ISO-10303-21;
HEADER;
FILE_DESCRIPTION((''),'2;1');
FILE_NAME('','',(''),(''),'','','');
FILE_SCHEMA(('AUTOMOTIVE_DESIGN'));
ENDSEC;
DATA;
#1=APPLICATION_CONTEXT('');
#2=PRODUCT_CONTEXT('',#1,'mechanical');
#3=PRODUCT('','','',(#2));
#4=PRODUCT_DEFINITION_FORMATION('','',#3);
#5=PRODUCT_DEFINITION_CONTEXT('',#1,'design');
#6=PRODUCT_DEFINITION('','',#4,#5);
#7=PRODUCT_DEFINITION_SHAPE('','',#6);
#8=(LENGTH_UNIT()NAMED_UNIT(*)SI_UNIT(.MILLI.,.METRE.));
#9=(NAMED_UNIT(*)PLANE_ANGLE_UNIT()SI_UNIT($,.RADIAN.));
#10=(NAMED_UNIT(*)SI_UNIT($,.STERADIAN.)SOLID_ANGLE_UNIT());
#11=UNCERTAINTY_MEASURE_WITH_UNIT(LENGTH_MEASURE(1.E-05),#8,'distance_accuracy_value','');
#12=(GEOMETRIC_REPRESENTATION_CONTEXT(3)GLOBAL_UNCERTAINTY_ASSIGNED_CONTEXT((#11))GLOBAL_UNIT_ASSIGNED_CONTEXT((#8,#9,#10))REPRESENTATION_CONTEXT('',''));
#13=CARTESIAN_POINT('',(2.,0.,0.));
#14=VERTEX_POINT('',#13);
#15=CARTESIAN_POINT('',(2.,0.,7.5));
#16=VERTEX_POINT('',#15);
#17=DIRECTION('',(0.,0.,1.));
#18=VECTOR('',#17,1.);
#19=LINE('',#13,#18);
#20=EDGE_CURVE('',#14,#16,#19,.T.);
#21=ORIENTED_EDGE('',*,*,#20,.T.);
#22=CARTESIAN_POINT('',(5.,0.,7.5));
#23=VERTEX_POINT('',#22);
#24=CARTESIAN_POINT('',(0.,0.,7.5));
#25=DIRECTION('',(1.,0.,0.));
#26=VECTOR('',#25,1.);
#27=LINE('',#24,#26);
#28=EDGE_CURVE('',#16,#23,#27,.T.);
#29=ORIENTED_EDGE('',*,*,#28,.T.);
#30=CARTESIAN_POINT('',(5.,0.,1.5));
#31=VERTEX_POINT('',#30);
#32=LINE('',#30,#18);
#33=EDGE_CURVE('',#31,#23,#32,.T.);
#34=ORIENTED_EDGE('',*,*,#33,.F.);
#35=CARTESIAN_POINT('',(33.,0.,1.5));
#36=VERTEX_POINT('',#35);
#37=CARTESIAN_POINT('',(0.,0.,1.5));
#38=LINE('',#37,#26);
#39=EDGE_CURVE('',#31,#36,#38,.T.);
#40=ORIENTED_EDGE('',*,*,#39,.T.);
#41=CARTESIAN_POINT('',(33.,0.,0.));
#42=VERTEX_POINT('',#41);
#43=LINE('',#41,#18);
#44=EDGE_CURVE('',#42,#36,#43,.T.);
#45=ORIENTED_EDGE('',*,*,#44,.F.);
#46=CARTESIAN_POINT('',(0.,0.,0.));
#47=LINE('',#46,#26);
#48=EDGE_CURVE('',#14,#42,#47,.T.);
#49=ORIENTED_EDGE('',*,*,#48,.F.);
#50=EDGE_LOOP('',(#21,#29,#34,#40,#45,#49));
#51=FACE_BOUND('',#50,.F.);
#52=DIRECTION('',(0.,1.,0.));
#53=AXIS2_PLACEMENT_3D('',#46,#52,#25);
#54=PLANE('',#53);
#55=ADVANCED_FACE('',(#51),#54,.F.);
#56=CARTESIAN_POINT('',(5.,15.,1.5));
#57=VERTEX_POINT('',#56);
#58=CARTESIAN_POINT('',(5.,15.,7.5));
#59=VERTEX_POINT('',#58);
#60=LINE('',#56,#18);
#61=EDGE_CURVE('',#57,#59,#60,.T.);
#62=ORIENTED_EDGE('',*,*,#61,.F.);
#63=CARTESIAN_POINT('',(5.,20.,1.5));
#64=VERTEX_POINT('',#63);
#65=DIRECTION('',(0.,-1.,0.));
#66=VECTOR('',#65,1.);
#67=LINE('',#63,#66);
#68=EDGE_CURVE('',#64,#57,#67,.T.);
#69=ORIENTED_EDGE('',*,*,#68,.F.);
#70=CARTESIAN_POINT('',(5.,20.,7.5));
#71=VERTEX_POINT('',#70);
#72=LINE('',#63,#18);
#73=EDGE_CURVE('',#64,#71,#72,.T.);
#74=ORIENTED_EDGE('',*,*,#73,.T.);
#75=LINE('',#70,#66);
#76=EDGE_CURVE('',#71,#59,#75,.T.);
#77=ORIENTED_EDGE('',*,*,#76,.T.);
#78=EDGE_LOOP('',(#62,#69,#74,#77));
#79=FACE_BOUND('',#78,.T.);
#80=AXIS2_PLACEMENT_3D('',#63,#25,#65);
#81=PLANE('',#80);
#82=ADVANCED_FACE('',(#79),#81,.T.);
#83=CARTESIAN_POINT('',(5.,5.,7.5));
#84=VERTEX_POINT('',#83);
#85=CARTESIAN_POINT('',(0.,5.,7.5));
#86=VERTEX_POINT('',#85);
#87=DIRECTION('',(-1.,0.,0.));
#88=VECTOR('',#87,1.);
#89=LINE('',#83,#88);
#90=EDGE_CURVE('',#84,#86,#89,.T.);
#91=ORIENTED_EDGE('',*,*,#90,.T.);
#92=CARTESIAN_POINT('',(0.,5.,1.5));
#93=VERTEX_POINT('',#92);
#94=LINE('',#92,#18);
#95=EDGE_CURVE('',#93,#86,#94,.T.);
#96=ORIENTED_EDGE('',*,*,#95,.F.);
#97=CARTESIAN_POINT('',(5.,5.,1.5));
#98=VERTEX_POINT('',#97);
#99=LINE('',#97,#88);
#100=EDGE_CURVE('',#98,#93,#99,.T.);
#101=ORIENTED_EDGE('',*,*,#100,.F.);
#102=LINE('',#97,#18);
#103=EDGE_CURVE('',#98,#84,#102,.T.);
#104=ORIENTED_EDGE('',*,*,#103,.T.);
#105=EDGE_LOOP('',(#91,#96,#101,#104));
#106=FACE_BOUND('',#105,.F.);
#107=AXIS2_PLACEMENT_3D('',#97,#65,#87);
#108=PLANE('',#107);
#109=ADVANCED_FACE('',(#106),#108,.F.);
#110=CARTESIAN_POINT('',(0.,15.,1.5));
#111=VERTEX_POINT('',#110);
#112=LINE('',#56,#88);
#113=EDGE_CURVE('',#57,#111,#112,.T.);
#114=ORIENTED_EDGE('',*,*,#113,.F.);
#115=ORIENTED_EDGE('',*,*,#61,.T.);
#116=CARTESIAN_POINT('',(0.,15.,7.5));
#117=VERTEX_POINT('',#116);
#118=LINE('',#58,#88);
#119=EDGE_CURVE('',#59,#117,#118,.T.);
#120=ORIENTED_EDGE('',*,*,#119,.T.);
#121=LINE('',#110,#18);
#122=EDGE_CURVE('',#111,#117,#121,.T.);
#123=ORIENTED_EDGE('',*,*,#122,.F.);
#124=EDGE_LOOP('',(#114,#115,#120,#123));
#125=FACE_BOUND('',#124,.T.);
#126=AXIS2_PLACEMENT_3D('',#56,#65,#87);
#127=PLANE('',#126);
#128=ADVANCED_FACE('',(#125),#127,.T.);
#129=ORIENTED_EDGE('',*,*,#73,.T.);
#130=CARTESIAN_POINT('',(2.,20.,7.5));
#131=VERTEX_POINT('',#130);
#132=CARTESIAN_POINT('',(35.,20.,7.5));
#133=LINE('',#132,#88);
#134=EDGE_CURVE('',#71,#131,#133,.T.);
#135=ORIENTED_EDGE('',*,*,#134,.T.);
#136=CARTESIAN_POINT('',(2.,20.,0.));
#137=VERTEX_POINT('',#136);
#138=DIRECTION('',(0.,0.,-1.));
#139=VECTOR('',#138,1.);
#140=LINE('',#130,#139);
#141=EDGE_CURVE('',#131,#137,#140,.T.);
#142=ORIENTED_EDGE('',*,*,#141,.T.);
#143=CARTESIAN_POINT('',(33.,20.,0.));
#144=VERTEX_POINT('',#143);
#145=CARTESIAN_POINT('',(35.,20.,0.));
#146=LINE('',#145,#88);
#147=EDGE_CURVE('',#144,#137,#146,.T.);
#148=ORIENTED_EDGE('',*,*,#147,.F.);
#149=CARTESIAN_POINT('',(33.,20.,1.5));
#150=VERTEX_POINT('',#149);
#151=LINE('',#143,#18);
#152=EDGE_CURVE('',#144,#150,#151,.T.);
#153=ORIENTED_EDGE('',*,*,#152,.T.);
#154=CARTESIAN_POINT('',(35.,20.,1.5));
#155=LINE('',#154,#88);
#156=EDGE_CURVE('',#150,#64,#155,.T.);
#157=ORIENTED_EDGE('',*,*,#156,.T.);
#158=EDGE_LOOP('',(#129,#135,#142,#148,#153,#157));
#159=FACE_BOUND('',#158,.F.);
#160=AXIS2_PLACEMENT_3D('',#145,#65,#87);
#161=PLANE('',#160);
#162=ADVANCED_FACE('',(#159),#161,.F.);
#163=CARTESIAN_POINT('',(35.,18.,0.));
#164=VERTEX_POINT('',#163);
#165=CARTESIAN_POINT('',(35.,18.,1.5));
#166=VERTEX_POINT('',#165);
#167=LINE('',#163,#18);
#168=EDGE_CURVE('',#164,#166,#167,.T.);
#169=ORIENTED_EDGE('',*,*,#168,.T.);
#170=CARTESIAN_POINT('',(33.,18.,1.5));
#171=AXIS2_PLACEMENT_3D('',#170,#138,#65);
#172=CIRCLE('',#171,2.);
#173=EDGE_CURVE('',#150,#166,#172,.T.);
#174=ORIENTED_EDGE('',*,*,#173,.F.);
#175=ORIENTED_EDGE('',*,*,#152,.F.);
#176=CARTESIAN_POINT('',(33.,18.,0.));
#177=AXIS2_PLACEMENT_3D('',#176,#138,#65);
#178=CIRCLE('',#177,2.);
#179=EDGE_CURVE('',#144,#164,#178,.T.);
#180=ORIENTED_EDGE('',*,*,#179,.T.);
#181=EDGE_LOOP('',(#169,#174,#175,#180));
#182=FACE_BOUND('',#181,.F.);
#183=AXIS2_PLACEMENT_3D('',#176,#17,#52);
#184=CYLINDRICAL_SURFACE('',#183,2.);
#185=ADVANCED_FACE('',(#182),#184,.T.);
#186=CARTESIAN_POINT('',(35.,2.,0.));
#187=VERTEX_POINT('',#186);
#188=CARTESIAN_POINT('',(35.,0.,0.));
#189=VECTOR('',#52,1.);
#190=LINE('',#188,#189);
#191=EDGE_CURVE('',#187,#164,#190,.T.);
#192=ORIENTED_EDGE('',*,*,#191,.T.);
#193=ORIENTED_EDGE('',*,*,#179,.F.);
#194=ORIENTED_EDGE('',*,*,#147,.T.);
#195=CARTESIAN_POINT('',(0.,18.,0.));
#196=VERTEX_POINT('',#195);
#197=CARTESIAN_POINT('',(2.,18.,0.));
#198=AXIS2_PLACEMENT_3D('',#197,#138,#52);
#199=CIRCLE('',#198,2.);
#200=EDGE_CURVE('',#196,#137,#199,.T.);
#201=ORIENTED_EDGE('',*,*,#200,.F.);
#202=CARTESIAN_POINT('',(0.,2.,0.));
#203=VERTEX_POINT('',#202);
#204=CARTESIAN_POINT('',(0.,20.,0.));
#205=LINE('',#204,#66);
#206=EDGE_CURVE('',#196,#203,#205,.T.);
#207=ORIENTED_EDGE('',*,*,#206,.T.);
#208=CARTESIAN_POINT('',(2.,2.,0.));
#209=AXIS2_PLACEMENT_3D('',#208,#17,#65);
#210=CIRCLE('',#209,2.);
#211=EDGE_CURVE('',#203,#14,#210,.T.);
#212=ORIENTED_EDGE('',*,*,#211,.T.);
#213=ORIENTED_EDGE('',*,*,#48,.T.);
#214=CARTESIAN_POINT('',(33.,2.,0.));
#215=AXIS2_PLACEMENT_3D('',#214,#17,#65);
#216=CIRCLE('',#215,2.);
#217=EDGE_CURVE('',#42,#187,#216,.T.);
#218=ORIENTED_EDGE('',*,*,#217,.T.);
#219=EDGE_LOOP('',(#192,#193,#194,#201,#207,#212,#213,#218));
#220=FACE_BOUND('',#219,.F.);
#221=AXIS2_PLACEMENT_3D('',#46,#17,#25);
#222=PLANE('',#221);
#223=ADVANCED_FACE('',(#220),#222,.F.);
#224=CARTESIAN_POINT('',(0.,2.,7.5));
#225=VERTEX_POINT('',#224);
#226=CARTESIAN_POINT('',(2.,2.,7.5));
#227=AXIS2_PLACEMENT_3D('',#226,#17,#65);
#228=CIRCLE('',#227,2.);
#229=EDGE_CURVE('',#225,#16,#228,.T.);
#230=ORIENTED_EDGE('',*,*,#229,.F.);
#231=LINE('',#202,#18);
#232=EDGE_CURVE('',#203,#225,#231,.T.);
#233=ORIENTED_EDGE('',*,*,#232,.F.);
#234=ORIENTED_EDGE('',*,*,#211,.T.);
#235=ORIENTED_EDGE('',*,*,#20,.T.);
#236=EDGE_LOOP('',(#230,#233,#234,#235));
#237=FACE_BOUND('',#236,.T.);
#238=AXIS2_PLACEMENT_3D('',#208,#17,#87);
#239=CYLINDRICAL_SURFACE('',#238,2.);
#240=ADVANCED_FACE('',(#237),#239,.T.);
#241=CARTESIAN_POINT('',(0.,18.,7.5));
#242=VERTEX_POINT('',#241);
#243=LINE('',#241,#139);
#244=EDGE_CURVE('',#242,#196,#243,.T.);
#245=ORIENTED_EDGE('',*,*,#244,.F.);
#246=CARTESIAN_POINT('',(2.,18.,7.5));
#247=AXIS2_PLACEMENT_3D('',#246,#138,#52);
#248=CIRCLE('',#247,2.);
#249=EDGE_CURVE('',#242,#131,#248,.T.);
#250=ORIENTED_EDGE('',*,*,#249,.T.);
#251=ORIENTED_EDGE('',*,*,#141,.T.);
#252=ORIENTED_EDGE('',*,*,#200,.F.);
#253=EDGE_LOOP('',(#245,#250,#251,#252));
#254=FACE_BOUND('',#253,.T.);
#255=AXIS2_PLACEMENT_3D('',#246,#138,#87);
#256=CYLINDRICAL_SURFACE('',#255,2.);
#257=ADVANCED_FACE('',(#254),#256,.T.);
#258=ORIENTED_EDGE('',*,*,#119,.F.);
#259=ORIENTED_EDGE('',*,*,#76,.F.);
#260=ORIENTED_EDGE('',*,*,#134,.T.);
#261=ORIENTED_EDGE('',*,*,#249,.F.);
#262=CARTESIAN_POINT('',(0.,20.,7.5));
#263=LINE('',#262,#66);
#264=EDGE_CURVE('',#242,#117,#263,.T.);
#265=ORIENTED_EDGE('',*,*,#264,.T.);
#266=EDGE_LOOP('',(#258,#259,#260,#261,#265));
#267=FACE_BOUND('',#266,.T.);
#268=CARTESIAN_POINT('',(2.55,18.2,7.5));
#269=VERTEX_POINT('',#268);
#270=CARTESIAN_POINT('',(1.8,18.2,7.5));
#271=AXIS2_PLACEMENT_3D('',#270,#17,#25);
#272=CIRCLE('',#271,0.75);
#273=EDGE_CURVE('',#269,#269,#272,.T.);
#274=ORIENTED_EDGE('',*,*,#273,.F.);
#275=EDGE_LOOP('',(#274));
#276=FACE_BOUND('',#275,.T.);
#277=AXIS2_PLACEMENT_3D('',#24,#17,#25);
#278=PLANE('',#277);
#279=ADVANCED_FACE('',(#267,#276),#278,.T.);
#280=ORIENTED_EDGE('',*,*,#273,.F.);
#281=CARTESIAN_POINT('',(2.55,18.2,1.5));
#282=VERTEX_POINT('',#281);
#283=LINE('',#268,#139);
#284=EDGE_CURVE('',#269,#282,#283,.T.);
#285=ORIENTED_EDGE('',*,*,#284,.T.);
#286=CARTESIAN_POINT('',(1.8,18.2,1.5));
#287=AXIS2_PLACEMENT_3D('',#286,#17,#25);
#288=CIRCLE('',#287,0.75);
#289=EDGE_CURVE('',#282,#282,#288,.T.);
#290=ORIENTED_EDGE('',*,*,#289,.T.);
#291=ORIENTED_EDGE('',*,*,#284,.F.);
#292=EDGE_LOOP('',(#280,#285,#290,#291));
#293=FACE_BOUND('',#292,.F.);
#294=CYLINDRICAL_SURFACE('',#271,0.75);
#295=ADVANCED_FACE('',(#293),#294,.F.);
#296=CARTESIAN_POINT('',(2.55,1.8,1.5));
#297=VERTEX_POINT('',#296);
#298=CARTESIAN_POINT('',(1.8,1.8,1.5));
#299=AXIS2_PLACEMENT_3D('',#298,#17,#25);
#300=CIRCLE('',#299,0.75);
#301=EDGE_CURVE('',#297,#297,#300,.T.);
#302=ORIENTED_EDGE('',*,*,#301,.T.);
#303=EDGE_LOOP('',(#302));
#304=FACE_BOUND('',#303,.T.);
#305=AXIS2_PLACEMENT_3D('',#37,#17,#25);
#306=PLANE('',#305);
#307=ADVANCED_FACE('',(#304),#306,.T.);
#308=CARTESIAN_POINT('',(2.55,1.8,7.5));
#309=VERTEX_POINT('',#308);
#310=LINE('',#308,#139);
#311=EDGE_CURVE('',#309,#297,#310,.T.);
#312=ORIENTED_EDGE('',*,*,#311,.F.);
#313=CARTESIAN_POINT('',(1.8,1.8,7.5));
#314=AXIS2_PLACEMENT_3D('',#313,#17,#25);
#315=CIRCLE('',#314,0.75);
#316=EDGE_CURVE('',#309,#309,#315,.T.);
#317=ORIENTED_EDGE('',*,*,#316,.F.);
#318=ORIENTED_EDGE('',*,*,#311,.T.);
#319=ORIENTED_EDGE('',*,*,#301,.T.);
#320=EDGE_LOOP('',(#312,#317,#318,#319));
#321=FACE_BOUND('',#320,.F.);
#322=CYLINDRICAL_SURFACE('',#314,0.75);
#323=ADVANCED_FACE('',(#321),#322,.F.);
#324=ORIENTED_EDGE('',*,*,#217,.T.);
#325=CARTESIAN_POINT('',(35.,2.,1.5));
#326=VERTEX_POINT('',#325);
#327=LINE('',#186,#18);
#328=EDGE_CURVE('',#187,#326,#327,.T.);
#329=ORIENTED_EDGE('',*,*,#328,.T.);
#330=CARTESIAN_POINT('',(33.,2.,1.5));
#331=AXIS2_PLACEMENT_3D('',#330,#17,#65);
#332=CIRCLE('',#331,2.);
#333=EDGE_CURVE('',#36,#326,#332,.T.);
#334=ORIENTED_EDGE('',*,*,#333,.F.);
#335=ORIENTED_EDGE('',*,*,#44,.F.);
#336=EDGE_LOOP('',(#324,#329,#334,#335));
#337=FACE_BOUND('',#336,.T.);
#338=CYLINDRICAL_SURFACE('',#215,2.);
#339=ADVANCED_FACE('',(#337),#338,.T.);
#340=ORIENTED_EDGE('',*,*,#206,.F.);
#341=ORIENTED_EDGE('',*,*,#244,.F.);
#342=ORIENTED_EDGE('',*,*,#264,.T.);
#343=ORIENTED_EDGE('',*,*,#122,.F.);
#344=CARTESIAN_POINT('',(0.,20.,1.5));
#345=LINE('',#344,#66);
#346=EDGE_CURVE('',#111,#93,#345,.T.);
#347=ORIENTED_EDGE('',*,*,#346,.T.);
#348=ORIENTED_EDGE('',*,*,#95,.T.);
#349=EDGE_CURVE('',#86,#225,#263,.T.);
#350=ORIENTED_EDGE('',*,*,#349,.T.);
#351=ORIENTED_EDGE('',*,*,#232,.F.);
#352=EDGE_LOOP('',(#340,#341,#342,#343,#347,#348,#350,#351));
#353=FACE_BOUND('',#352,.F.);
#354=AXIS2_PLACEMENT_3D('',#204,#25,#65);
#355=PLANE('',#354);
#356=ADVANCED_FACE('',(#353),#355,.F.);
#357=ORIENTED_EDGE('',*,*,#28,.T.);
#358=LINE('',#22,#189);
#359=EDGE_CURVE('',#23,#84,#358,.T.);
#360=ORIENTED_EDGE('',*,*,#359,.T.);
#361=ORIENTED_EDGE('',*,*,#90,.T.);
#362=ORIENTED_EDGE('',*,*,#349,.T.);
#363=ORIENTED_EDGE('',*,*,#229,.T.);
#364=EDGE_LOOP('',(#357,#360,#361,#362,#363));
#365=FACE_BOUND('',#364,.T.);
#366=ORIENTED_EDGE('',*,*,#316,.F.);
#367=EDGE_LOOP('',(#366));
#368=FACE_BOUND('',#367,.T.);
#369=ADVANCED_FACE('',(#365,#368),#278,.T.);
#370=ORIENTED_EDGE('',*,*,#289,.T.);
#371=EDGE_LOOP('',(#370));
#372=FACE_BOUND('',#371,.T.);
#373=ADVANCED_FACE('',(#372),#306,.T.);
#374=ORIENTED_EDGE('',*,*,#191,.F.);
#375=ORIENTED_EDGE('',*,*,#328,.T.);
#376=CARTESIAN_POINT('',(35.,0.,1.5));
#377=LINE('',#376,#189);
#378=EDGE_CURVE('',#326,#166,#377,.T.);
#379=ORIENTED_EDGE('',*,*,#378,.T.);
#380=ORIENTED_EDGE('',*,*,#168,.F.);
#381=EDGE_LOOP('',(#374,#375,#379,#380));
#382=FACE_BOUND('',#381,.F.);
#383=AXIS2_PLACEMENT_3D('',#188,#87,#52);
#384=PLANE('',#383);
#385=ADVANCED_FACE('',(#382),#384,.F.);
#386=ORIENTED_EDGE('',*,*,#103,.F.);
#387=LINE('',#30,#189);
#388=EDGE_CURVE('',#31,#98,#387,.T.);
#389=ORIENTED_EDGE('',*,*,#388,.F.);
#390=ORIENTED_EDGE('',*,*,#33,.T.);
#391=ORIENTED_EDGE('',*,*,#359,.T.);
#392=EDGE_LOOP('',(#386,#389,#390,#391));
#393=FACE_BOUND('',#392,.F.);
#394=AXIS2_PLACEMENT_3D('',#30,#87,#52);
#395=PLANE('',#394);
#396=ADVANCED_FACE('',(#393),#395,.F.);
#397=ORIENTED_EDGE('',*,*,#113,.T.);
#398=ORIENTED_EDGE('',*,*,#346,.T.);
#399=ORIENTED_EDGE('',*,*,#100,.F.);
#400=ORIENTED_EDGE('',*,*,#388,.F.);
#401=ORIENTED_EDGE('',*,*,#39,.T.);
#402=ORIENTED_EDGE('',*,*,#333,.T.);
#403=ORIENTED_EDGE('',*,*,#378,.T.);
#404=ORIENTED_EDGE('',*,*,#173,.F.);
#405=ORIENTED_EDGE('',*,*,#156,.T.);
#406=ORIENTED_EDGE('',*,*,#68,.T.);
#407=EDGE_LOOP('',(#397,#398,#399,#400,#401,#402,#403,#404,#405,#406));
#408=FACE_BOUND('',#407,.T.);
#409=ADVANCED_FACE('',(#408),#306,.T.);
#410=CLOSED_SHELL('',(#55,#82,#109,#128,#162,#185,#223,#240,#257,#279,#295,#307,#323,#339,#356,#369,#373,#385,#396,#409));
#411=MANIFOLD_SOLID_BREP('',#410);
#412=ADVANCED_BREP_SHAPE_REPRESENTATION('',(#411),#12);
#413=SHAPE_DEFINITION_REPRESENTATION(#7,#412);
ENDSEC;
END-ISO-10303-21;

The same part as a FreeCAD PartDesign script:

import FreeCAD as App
import Part
import Sketcher

V = App.Vector


def edges_at(feature, points):
    """Names of the edges that pass closest to the given points."""
    edges = feature.Shape.Edges
    near = lambda p: min(range(len(edges)), key=lambda i: edges[i].distToShape(Part.Vertex(*p))[0])
    return sorted({f"Edge{near(p) + 1}" for p in points})


def add_polygon(sketch, points):
    """Adds a closed chain of lines whose ends are joined by coincident constraints."""
    first, n = sketch.GeometryCount, len(points)
    for a, b in zip(points, points[1:] + points[:1]):
        sketch.addGeometry(Part.LineSegment(App.Vector(*a, 0), App.Vector(*b, 0)), False)
    for i in range(n):
        sketch.addConstraint(Sketcher.Constraint("Coincident", first + i, 2, first + (i + 1) % n, 1))

doc = App.newDocument("Part")
params = doc.addObject("Spreadsheet::Sheet", "Params")
for row, (alias, value) in enumerate([
    ("sketch1_width", "35 mm"),
    ("sketch1_height", "20 mm"),
    ("pad1_length", "1.5 mm"),
    ("sketch2_width", "5 mm"),
    ("pad2_length", "6 mm"),
    ("sketch3_diameter", "1.5 mm"),
    ("pocket1_length", "6 mm"),
    ("fillet_radius", "2 mm"),
], start=1):
    params.set(f"A{row}", alias)
    params.set(f"B{row}", "=" + value)
    params.setAlias(f"B{row}", alias)

body = doc.addObject("PartDesign::Body", "Body")

sketch1 = body.newObject("Sketcher::SketchObject", "Sketch")
sketch1.AttachmentSupport = (doc.getObject("XY_Plane"), [""])
sketch1.MapMode = "FlatFace"
add_polygon(sketch1, [(0, 20), (0, 0), (35, 0), (35, 20)])
sketch1.addConstraint(Sketcher.Constraint("Vertical", 0))
sketch1.addConstraint(Sketcher.Constraint("Horizontal", 1))
sketch1.addConstraint(Sketcher.Constraint("Vertical", 2))
sketch1.addConstraint(Sketcher.Constraint("Horizontal", 3))
sketch1.addConstraint(Sketcher.Constraint("Coincident", 0, 2, -1, 1))
sketch1.addConstraint(Sketcher.Constraint("DistanceX", 1, 1, 1, 2, 35.0))
sketch1.addConstraint(Sketcher.Constraint("DistanceY", 0, 2, 0, 1, 20.0))
sketch1.setExpression("Constraints[9]", "Params.sketch1_width")
sketch1.setExpression("Constraints[10]", "Params.sketch1_height")
pad1 = body.newObject("PartDesign::Pad", "Pad")
pad1.Profile = sketch1
pad1.setExpression("Length", "Params.pad1_length")

sketch2 = body.newObject("Sketcher::SketchObject", "Sketch001")
sketch2.AttachmentSupport = (doc.getObject("XY_Plane"), [""])
sketch2.MapMode = "FlatFace"
sketch2.AttachmentOffset = App.Placement(V(0, 0, 1.5), App.Rotation())
add_polygon(sketch2, [(5, 20), (0, 20), (0, 15), (5, 15)])
add_polygon(sketch2, [(5, 5), (0, 5), (0, 0), (5, 0)])
sketch2.addConstraint(Sketcher.Constraint("Horizontal", 0))
sketch2.addConstraint(Sketcher.Constraint("Vertical", 1))
sketch2.addConstraint(Sketcher.Constraint("Horizontal", 2))
sketch2.addConstraint(Sketcher.Constraint("Vertical", 3))
sketch2.addConstraint(Sketcher.Constraint("Horizontal", 4))
sketch2.addConstraint(Sketcher.Constraint("Vertical", 5))
sketch2.addConstraint(Sketcher.Constraint("Horizontal", 6))
sketch2.addConstraint(Sketcher.Constraint("Vertical", 7))
sketch2.addConstraint(Sketcher.Constraint("Coincident", 5, 2, -1, 1))
sketch2.addConstraint(Sketcher.Constraint("PointOnObject", 0, 2, -2))
sketch2.addConstraint(Sketcher.Constraint("Vertical", 3, 2, 6, 2))
sketch2.addConstraint(Sketcher.Constraint("Equal", 6, 1))
sketch2.addConstraint(Sketcher.Constraint("Equal", 3, 5))
sketch2.addConstraint(Sketcher.Constraint("DistanceX", 0, 2, 0, 1, 5.0))
sketch2.addConstraint(Sketcher.Constraint("DistanceY", -1, 1, 0, 2, 20.0))
sketch2.setExpression("Constraints[21]", "Params.sketch2_width")
pad2 = body.newObject("PartDesign::Pad", "Pad001")
pad2.Profile = sketch2
pad2.setExpression("Length", "Params.pad2_length")

sketch3 = body.newObject("Sketcher::SketchObject", "Sketch002")
sketch3.AttachmentSupport = (doc.getObject("XY_Plane"), [""])
sketch3.MapMode = "FlatFace"
sketch3.AttachmentOffset = App.Placement(V(0, 0, 7.5), App.Rotation())
sketch3.addGeometry(Part.Circle(V(1.8, 1.8, 0), V(0, 0, 1), 0.8), False)
sketch3.addGeometry(Part.Circle(V(1.8, 18.2, 0), V(0, 0, 1), 0.8), False)
sketch3.addConstraint(Sketcher.Constraint("Equal", 0, 1))
sketch3.addConstraint(Sketcher.Constraint("Vertical", 0, 3, 1, 3))
sketch3.addConstraint(Sketcher.Constraint("Diameter", 0, 1.5))
sketch3.addConstraint(Sketcher.Constraint("DistanceX", -1, 1, 0, 3, 1.8))
sketch3.addConstraint(Sketcher.Constraint("DistanceY", -1, 1, 0, 3, 1.8))
sketch3.addConstraint(Sketcher.Constraint("DistanceY", -1, 1, 1, 3, 18.2))
sketch3.setExpression("Constraints[2]", "Params.sketch3_diameter")
pocket1 = body.newObject("PartDesign::Pocket", "Pocket")
pocket1.Profile = sketch3
pocket1.setExpression("Length", "Params.pocket1_length")
doc.recompute()

fillet = body.newObject("PartDesign::Fillet", "Fillet")
fillet.Base = (pocket1, edges_at(pocket1, [
    (0, 0, 3.75),
    (0, 20, 3.75),
    (35, 20, 0.75),
    (35, 0, 0.75),
]))
fillet.setExpression("Radius", "Params.fillet_radius")

doc.recompute()
